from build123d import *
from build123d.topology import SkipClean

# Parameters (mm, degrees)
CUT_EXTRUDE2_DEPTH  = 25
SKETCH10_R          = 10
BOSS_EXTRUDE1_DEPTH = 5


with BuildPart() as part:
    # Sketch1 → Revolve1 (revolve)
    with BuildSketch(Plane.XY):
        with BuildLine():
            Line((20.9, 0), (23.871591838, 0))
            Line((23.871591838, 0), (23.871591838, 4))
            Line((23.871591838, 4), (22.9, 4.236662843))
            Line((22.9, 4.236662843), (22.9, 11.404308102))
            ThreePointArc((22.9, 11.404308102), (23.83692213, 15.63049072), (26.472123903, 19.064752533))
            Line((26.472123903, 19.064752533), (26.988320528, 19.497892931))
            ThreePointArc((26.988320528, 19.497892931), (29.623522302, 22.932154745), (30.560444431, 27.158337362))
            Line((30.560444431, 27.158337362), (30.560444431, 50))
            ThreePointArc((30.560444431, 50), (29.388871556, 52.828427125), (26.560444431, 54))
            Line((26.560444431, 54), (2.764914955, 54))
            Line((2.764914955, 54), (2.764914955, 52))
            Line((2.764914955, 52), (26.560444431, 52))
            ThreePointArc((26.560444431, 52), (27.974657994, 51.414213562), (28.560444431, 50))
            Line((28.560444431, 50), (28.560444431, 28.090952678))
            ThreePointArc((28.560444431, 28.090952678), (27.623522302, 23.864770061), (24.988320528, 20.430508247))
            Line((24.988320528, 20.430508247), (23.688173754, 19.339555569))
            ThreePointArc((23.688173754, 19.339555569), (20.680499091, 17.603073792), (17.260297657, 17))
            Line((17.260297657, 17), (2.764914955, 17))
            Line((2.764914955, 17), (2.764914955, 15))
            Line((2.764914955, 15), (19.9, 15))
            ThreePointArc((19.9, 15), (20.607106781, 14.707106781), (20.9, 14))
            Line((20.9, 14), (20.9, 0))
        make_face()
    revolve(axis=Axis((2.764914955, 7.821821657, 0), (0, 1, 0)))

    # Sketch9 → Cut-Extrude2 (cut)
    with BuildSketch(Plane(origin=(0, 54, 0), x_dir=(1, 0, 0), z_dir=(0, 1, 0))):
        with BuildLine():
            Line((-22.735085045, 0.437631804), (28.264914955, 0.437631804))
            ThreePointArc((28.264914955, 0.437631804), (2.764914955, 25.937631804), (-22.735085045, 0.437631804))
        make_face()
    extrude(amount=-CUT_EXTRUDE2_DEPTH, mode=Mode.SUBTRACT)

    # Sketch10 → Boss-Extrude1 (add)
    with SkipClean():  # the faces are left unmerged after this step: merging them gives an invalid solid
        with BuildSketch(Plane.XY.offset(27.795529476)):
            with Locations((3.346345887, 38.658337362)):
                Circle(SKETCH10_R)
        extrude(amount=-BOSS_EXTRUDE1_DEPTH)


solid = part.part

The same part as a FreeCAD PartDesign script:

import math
import FreeCAD as App
import Part
import Sketcher
from FreeCAD import Vector
Q = App.Units.Quantity

doc = App.newDocument("Part")
params = doc.addObject("Spreadsheet::Sheet", "Params")
for row, (alias, value) in enumerate([
    ("sketch1_radius", "10 mm"),
    ("sketch1_radius2", "4 mm"),
    ("sketch1_radius3", "2 mm"),
    ("sketch1_radius4", "1 mm"),
    ("sketch1_height", "4 mm"),
    ("revolution_angle", "360 deg"),
    ("sketch2_radius", "25.5 mm"),
    ("pocket1_length", "25 mm"),
    ("sketch3_diameter", "20 mm"),
    ("pad1_length", "5 mm"),
], start=1):
    params.set(f"A{row}", alias)
    params.set(f"B{row}", "=" + value)
    params.setAlias(f"B{row}", alias)

body = doc.addObject("PartDesign::Body", "Body")

# Sketch on XY plane
sketch1 = body.newObject("Sketcher::SketchObject", "Sketch")
sketch1.AttachmentSupport = (doc.getObject("XY_Plane"), [""])
sketch1.MapMode = "FlatFace"
sketch1.addGeometry([
    Part.LineSegment(Vector(20.9, 0, 0), Vector(23.9, 0, 0)),  # 0
    Part.LineSegment(Vector(23.9, 0, 0), Vector(23.9, 4, 0)),  # 1
    Part.LineSegment(Vector(23.9, 4, 0), Vector(22.9, 4.2, 0)),  # 2
    Part.LineSegment(Vector(22.9, 4.2, 0), Vector(22.9, 11.4, 0)),  # 3
    Part.ArcOfCircle(Part.Circle(Vector(32.9, 11.4, 0), Vector(0, 0, 1), 10), math.radians(130), math.radians(180)),  # 4
    Part.LineSegment(Vector(26.5, 19.1, 0), Vector(27, 19.5, 0)),  # 5
    Part.ArcOfCircle(Part.Circle(Vector(20.6, 27.2, 0), Vector(0, 0, 1), 10), math.radians(-50), math.radians(0)),  # 6
    Part.LineSegment(Vector(30.6, 27.2, 0), Vector(30.6, 50, 0)),  # 7
    Part.ArcOfCircle(Part.Circle(Vector(26.6, 50, 0), Vector(0, 0, 1), 4), math.radians(0), math.radians(90)),  # 8
    Part.LineSegment(Vector(26.6, 54, 0), Vector(2.8, 54, 0)),  # 9
    Part.LineSegment(Vector(2.8, 54, 0), Vector(2.8, 52, 0)),  # 10
    Part.LineSegment(Vector(2.8, 52, 0), Vector(26.6, 52, 0)),  # 11
    Part.ArcOfCircle(Part.Circle(Vector(26.6, 50, 0), Vector(0, 0, 1), 2), math.radians(0), math.radians(90)),  # 12
    Part.LineSegment(Vector(28.6, 50, 0), Vector(28.6, 28.1, 0)),  # 13
    Part.ArcOfCircle(Part.Circle(Vector(18.6, 28.1, 0), Vector(0, 0, 1), 10), math.radians(-50), math.radians(0)),  # 14
    Part.LineSegment(Vector(25, 20.4, 0), Vector(23.7, 19.3, 0)),  # 15
    Part.ArcOfCircle(Part.Circle(Vector(17.3, 27, 0), Vector(0, 0, 1), 10), math.radians(-90), math.radians(-50)),  # 16
    Part.LineSegment(Vector(17.3, 17, 0), Vector(2.8, 17, 0)),  # 17
    Part.LineSegment(Vector(2.8, 17, 0), Vector(2.8, 15, 0)),  # 18
    Part.LineSegment(Vector(2.8, 15, 0), Vector(19.9, 15, 0)),  # 19
    Part.ArcOfCircle(Part.Circle(Vector(19.9, 14, 0), Vector(0, 0, 1), 1), math.radians(0), math.radians(90)),  # 20
    Part.LineSegment(Vector(20.9, 14, 0), Vector(20.9, 0, 0)),  # 21
], False)
sketch1.addGeometry(Part.LineSegment(Vector(2.8, 0, 0), Vector(2.8, 54, 0)), True)  # axis
sketch1.addConstraint([
    Sketcher.Constraint("Coincident", 0, 2, 1, 1),
    Sketcher.Constraint("Coincident", 1, 2, 2, 1),
    Sketcher.Constraint("Coincident", 2, 2, 3, 1),
    Sketcher.Constraint("Tangent", 3, 2, 4, 2),
    Sketcher.Constraint("Tangent", 4, 1, 5, 1),
    Sketcher.Constraint("Tangent", 5, 2, 6, 1),
    Sketcher.Constraint("Tangent", 6, 2, 7, 1),
    Sketcher.Constraint("Tangent", 7, 2, 8, 1),
    Sketcher.Constraint("Tangent", 8, 2, 9, 1),
    Sketcher.Constraint("Coincident", 9, 2, 10, 1),
    Sketcher.Constraint("Coincident", 10, 2, 11, 1),
    Sketcher.Constraint("Tangent", 11, 2, 12, 2),
    Sketcher.Constraint("Tangent", 12, 1, 13, 1),
    Sketcher.Constraint("Tangent", 13, 2, 14, 2),
    Sketcher.Constraint("Tangent", 14, 1, 15, 1),
    Sketcher.Constraint("Tangent", 15, 2, 16, 2),
    Sketcher.Constraint("Tangent", 16, 1, 17, 1),
    Sketcher.Constraint("Coincident", 17, 2, 18, 1),
    Sketcher.Constraint("Coincident", 18, 2, 19, 1),
    Sketcher.Constraint("Tangent", 19, 2, 20, 2),
    Sketcher.Constraint("Tangent", 20, 1, 21, 1),
    Sketcher.Constraint("Coincident", 21, 2, 0, 1),
    Sketcher.Constraint("Horizontal", 0),
    Sketcher.Constraint("Vertical", 1),
    Sketcher.Constraint("Vertical", 3),
    Sketcher.Constraint("Vertical", 7),
    Sketcher.Constraint("Horizontal", 9),
    Sketcher.Constraint("Vertical", 10),
    Sketcher.Constraint("Horizontal", 11),
    Sketcher.Constraint("Vertical", 13),
    Sketcher.Constraint("Horizontal", 17),
    Sketcher.Constraint("Vertical", 18),
    Sketcher.Constraint("Horizontal", 19),
    Sketcher.Constraint("Vertical", 21),
    Sketcher.Constraint("Vertical", 22),
    Sketcher.Constraint("Coincident", 12, 3, 8, 3),
    Sketcher.Constraint("Coincident", 22, 2, 9, 2),
    Sketcher.Constraint("Equal", 4, 6),
    Sketcher.Constraint("Equal", 6, 14),
    Sketcher.Constraint("Equal", 14, 16),
    Sketcher.Constraint("PointOnObject", 0, 2, -1),
    Sketcher.Constraint("PointOnObject", 22, 1, -1),
    Sketcher.Constraint("Parallel", 5, 15),
    Sketcher.Constraint("Vertical", 10, 2, 17, 2),
    Sketcher.Constraint("Equal", 10, 18),
    Sketcher.Constraint("Radius", 4, 10.0),
    Sketcher.Constraint("Radius", 8, 4.0),
    Sketcher.Constraint("Radius", 12, 2.0),
    Sketcher.Constraint("Radius", 20, 1.0),
    Sketcher.Constraint("DistanceY", 1, 1, 1, 2, 4.0),
    Sketcher.Constraint("DistanceY", 21, 2, 21, 1, 14.0),
    Sketcher.Constraint("DistanceY", 22, 1, 22, 2, 54.0),
    Sketcher.Constraint("Angle", 5, Q("40 deg")),
    Sketcher.Constraint("Distance", 2, 1.0),
    Sketcher.Constraint("DistanceX", 20, 3, 4, 3, 13.0),
    Sketcher.Constraint("DistanceX", -1, 1, 4, 3, 32.9),
    Sketcher.Constraint("DistanceX", 0, 1, 0, 2, 2.971592),
    Sketcher.Constraint("DistanceX", 9, 2, 9, 1, 23.795529),
    Sketcher.Constraint("DistanceY", 4, 1, 14, 3, 9.0262),
    Sketcher.Constraint("Distance", 15, 1.697221),
    Sketcher.Constraint("DistanceX", 19, 1, 19, 2, 17.135085),
])
sketch1.setExpression("Constraints[45]", "Params.sketch1_radius")
sketch1.setExpression("Constraints[46]", "Params.sketch1_radius2")
sketch1.setExpression("Constraints[47]", "Params.sketch1_radius3")
sketch1.setExpression("Constraints[48]", "Params.sketch1_radius4")
sketch1.setExpression("Constraints[49]", "Params.sketch1_height")
revolution = body.newObject("PartDesign::Revolution", "Revolution")
revolution.Profile = sketch1
revolution.ReferenceAxis = (sketch1, ["Axis0"])
revolution.setExpression("Angle", "Params.revolution_angle")

# Sketch on XZ plane
sketch2 = body.newObject("Sketcher::SketchObject", "Sketch001")
sketch2.AttachmentSupport = (doc.getObject("XZ_Plane"), [""])
sketch2.MapMode = "FlatFace"
sketch2.AttachmentOffset = App.Placement(Vector(0, 0, -54), App.Rotation())
sketch2.addGeometry([
    Part.LineSegment(Vector(-23, 0, 0), Vector(28, 0, 0)),
    Part.ArcOfCircle(Part.Circle(Vector(3, 0, 0), Vector(0, 0, 1), 26), math.radians(180), math.radians(360)),
], False)
sketch2.addConstraint([
    Sketcher.Constraint("Coincident", 0, 1, 1, 1),
    Sketcher.Constraint("Coincident", 1, 2, 0, 2),
    Sketcher.Constraint("Horizontal", 0),
    Sketcher.Constraint("Horizontal", 1, 3, 0, 1),
    Sketcher.Constraint("Radius", 1, 25.5),
    Sketcher.Constraint("DistanceY", 1, 3, -1, 1, 0.437632),
    Sketcher.Constraint("DistanceX", -1, 1, 1, 3, 2.764915),
])
sketch2.setExpression("Constraints[4]", "Params.sketch2_radius")
pocket1 = body.newObject("PartDesign::Pocket", "Pocket")
pocket1.Profile = sketch2
pocket1.setExpression("Length", "Params.pocket1_length")
pocket1.Reversed = True

# Sketch on XY plane
sketch3 = body.newObject("Sketcher::SketchObject", "Sketch002")
sketch3.AttachmentSupport = (doc.getObject("XY_Plane"), [""])
sketch3.MapMode = "FlatFace"
sketch3.AttachmentOffset = App.Placement(Vector(0, 0, 27.795529), App.Rotation())
sketch3.addGeometry(Part.Circle(Vector(3, 39, 0), Vector(0, 0, 1), 10), False)
sketch3.addConstraint([
    Sketcher.Constraint("Diameter", 0, 20.0),
    Sketcher.Constraint("DistanceX", -1, 1, 0, 3, 3.346346),
    Sketcher.Constraint("DistanceY", -1, 1, 0, 3, 38.658337),
])
sketch3.setExpression("Constraints[0]", "Params.sketch3_diameter")
pad1 = body.newObject("PartDesign::Pad", "Pad")
pad1.Profile = sketch3
pad1.setExpression("Length", "Params.pad1_length")
pad1.Reversed = True

doc.recompute()
